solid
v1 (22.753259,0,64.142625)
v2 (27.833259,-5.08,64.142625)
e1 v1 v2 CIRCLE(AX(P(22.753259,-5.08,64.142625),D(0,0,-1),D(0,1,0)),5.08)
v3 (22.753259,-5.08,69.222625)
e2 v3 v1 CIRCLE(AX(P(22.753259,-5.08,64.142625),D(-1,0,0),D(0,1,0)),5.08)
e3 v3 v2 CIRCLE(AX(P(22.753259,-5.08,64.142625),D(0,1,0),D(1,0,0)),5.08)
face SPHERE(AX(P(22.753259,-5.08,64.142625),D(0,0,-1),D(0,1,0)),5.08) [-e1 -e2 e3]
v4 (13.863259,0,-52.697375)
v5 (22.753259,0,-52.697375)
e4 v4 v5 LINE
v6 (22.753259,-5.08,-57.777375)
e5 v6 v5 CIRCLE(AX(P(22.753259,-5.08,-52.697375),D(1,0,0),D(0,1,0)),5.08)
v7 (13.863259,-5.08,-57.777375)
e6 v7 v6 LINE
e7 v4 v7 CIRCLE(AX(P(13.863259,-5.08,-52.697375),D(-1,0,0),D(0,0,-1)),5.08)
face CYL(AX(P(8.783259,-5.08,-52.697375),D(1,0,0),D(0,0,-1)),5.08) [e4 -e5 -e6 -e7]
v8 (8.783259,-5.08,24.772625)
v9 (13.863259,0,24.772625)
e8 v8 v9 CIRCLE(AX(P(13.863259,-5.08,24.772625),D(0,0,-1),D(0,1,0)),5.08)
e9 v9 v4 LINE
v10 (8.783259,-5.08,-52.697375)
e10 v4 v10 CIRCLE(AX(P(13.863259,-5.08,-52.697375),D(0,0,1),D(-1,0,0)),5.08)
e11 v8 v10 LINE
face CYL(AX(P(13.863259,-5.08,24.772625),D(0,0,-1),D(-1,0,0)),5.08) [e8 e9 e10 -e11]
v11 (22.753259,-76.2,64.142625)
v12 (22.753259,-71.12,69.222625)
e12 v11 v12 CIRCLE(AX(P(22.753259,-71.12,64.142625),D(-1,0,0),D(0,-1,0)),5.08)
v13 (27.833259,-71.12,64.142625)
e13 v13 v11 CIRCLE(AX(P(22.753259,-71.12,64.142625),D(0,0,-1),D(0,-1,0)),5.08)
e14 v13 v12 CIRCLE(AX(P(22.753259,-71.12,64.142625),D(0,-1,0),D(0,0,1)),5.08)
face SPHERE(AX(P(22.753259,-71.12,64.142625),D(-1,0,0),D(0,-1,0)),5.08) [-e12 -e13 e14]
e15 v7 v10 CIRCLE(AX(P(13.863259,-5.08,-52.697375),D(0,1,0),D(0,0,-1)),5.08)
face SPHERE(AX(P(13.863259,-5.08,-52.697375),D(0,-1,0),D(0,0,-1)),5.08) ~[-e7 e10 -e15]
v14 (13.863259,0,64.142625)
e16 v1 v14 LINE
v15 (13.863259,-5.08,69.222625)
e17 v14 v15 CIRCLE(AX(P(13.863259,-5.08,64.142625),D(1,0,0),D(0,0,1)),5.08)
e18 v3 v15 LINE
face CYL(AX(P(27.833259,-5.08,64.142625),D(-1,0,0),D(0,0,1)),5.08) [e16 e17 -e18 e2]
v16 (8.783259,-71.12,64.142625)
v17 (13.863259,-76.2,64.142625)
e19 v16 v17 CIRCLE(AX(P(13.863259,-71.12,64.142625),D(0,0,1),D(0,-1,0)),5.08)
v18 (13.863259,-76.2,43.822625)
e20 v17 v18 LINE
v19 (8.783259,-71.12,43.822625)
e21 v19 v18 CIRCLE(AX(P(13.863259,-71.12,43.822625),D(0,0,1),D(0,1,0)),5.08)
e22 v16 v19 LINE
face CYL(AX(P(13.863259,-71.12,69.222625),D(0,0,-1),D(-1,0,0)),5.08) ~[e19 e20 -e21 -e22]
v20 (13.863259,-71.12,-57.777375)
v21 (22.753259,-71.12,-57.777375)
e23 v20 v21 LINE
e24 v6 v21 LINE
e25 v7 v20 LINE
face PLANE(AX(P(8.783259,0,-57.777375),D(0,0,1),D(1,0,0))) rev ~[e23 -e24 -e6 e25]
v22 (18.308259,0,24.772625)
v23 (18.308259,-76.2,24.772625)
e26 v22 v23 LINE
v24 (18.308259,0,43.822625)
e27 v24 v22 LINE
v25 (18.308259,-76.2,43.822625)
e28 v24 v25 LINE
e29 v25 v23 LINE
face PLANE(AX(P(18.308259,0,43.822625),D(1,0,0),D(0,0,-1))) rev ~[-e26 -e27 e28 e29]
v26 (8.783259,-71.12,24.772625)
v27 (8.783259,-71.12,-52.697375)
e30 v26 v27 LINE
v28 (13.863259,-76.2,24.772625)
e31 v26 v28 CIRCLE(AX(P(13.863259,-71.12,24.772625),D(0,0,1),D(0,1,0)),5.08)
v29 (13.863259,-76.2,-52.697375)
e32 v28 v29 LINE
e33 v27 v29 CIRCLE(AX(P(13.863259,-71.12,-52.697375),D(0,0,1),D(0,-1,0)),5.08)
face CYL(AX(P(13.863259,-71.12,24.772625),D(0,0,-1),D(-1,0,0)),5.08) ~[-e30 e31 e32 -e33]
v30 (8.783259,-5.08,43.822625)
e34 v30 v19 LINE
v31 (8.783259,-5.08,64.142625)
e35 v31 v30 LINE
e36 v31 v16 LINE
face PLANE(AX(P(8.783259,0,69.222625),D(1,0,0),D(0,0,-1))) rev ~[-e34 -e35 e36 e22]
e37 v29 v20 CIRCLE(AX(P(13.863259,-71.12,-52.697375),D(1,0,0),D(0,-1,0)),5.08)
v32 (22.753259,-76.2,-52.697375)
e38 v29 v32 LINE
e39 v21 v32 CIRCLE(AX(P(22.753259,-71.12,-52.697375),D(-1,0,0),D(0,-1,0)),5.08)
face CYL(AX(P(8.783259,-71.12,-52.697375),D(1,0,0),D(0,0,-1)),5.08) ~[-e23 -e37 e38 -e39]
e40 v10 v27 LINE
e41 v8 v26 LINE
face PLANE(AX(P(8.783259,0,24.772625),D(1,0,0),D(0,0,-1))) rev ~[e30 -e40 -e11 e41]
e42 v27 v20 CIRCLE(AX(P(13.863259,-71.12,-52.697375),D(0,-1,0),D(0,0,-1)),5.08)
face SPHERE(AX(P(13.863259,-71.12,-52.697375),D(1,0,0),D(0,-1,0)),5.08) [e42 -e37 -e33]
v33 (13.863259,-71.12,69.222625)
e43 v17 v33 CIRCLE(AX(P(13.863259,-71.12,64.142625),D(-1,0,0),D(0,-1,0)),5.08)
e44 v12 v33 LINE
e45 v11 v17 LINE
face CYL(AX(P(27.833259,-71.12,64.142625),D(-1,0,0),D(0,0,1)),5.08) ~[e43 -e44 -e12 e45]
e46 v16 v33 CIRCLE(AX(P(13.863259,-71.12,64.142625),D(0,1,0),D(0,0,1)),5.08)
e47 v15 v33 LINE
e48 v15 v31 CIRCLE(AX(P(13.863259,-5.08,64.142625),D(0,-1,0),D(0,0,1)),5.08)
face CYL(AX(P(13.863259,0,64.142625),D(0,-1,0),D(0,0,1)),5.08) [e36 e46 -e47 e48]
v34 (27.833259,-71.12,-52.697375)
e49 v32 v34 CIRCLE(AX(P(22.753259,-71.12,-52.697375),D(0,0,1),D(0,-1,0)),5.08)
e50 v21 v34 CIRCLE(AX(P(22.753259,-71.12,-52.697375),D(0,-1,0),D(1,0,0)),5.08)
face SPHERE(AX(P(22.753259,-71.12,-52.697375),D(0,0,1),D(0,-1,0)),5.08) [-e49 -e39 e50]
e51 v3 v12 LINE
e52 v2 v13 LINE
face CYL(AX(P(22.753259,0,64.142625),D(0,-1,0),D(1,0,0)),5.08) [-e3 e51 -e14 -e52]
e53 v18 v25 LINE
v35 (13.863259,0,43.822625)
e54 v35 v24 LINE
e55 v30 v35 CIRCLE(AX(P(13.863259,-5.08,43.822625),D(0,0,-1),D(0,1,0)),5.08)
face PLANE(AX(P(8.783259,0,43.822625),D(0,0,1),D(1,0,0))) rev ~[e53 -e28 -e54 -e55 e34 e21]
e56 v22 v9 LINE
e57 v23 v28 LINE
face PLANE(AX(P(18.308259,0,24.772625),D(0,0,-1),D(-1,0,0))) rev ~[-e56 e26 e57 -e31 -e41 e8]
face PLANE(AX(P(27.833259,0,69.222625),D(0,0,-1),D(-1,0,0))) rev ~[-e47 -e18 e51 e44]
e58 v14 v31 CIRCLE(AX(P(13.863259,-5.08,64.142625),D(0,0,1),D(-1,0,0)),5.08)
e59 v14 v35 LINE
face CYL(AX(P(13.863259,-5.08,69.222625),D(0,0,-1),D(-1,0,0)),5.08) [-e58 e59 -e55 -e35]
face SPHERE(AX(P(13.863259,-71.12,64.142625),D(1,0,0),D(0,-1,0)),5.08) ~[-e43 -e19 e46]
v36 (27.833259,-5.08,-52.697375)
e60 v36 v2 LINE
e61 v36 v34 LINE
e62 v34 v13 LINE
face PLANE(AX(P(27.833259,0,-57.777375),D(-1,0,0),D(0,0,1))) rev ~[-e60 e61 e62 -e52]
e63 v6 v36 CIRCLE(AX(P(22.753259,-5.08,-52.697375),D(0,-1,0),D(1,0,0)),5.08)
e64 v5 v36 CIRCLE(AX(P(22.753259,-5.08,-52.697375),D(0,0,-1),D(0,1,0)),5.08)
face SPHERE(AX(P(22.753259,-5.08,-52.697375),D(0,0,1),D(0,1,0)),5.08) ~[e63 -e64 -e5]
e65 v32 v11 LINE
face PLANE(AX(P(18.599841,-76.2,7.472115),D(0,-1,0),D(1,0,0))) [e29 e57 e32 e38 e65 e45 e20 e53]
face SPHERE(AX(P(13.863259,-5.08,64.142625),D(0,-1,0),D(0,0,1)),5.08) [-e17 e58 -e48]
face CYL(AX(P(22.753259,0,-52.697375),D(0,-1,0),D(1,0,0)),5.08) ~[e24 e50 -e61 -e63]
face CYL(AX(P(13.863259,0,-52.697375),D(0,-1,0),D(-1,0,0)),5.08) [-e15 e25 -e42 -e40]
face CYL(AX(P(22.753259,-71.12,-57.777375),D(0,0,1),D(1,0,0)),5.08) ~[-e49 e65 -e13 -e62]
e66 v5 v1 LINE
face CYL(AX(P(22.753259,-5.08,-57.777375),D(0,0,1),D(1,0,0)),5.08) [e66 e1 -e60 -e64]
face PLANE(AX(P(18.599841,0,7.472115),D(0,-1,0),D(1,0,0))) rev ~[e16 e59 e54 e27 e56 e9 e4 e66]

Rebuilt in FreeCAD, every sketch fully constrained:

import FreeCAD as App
import Part
import Sketcher
from FreeCAD import Vector
Q = App.Units.Quantity


def edges_at(feature, points):
    """Names of the edges that pass closest to the given points."""
    edges = feature.Shape.Edges
    near = lambda p: min(range(len(edges)), key=lambda i: edges[i].distToShape(Part.Vertex(*p))[0])
    return sorted({f"Edge{near(p) + 1}" for p in points})

doc = App.newDocument("Part")
params = doc.addObject("Spreadsheet::Sheet", "Params")
for row, (alias, value) in enumerate([
    ("sketch1_height", "5 in"),
    ("sketch1_height2", "1 in"),
    ("sketch1_width", "0.75 in"),
    ("sketch1_width2", "0.375 in"),
    ("pad1_length", "3 in"),
    ("fillet_radius", "0.2 in"),
], start=1):
    params.set(f"A{row}", alias)
    params.set(f"B{row}", "=" + value)
    params.setAlias(f"B{row}", alias)

body = doc.addObject("PartDesign::Body", "Body")

sketch1 = body.newObject("Sketcher::SketchObject", "Sketch")
sketch1.AttachmentSupport = (doc.getObject("XZ_Plane"), [""])
sketch1.MapMode = "FlatFace"
sketch1.addGeometry([
    Part.LineSegment(Vector(28, -58, 0), Vector(28, 69, 0)),
    Part.LineSegment(Vector(28, 69, 0), Vector(9, 69, 0)),
    Part.LineSegment(Vector(9, 69, 0), Vector(9, 44, 0)),
    Part.LineSegment(Vector(9, 44, 0), Vector(18, 44, 0)),
    Part.LineSegment(Vector(18, 44, 0), Vector(18, 25, 0)),
    Part.LineSegment(Vector(18, 25, 0), Vector(9, 25, 0)),
    Part.LineSegment(Vector(9, 25, 0), Vector(9, -58, 0)),
    Part.LineSegment(Vector(9, -58, 0), Vector(28, -58, 0)),
], False)
sketch1.addConstraint([
    Sketcher.Constraint("Coincident", 0, 2, 1, 1),
    Sketcher.Constraint("Coincident", 1, 2, 2, 1),
    Sketcher.Constraint("Coincident", 2, 2, 3, 1),
    Sketcher.Constraint("Coincident", 3, 2, 4, 1),
    Sketcher.Constraint("Coincident", 4, 2, 5, 1),
    Sketcher.Constraint("Coincident", 5, 2, 6, 1),
    Sketcher.Constraint("Coincident", 6, 2, 7, 1),
    Sketcher.Constraint("Coincident", 7, 2, 0, 1),
    Sketcher.Constraint("Vertical", 0),
    Sketcher.Constraint("Horizontal", 1),
    Sketcher.Constraint("Vertical", 2),
    Sketcher.Constraint("Horizontal", 3),
    Sketcher.Constraint("Vertical", 4),
    Sketcher.Constraint("Horizontal", 5),
    Sketcher.Constraint("Vertical", 6),
    Sketcher.Constraint("Horizontal", 7),
    Sketcher.Constraint("Vertical", 2, 2, 5, 2),
    Sketcher.Constraint("Equal", 7, 4),
    Sketcher.Constraint("DistanceY", 0, 1, 0, 2, Q("5 in")),
    Sketcher.Constraint("DistanceY", 2, 2, 2, 1, Q("1 in")),
    Sketcher.Constraint("DistanceX", 1, 2, 1, 1, Q("0.75 in")),
    Sketcher.Constraint("DistanceX", 3, 1, 3, 2, Q("0.375 in")),
    Sketcher.Constraint("DistanceY", -1, 1, 0, 2, Q("2.7253002 in")),
    Sketcher.Constraint("DistanceX", -1, 1, 0, 2, Q("27.833259 mm")),
])
sketch1.setExpression("Constraints[18]", "Params.sketch1_height")
sketch1.setExpression("Constraints[19]", "Params.sketch1_height2")
sketch1.setExpression("Constraints[20]", "Params.sketch1_width")
sketch1.setExpression("Constraints[21]", "Params.sketch1_width2")
pad1 = body.newObject("PartDesign::Pad", "Pad")
pad1.Profile = sketch1
pad1.setExpression("Length", "Params.pad1_length")
doc.recompute()

fillet = body.newObject("PartDesign::Fillet", "Fillet")
fillet.Base = (pad1, edges_at(pad1, [
    (18.308, -76.2, 69.223),
    (8.783, -76.2, 56.523),
    (27.833, -76.2, 5.723),
    (18.308, -76.2, -57.777),
    (8.783, -76.2, -16.502),
    (8.783, -38.1, 69.223),
    (8.783, -38.1, -57.777),
    (27.833, 0, 5.723),
    (18.308, 0, 69.223),
    (18.308, 0, -57.777),
    (27.833, -38.1, 69.223),
    (27.833, -38.1, -57.777),
    (8.783, 0, 56.523),
    (8.783, 0, -16.502),
]))
fillet.setExpression("Radius", "Params.fillet_radius")

doc.recompute()
